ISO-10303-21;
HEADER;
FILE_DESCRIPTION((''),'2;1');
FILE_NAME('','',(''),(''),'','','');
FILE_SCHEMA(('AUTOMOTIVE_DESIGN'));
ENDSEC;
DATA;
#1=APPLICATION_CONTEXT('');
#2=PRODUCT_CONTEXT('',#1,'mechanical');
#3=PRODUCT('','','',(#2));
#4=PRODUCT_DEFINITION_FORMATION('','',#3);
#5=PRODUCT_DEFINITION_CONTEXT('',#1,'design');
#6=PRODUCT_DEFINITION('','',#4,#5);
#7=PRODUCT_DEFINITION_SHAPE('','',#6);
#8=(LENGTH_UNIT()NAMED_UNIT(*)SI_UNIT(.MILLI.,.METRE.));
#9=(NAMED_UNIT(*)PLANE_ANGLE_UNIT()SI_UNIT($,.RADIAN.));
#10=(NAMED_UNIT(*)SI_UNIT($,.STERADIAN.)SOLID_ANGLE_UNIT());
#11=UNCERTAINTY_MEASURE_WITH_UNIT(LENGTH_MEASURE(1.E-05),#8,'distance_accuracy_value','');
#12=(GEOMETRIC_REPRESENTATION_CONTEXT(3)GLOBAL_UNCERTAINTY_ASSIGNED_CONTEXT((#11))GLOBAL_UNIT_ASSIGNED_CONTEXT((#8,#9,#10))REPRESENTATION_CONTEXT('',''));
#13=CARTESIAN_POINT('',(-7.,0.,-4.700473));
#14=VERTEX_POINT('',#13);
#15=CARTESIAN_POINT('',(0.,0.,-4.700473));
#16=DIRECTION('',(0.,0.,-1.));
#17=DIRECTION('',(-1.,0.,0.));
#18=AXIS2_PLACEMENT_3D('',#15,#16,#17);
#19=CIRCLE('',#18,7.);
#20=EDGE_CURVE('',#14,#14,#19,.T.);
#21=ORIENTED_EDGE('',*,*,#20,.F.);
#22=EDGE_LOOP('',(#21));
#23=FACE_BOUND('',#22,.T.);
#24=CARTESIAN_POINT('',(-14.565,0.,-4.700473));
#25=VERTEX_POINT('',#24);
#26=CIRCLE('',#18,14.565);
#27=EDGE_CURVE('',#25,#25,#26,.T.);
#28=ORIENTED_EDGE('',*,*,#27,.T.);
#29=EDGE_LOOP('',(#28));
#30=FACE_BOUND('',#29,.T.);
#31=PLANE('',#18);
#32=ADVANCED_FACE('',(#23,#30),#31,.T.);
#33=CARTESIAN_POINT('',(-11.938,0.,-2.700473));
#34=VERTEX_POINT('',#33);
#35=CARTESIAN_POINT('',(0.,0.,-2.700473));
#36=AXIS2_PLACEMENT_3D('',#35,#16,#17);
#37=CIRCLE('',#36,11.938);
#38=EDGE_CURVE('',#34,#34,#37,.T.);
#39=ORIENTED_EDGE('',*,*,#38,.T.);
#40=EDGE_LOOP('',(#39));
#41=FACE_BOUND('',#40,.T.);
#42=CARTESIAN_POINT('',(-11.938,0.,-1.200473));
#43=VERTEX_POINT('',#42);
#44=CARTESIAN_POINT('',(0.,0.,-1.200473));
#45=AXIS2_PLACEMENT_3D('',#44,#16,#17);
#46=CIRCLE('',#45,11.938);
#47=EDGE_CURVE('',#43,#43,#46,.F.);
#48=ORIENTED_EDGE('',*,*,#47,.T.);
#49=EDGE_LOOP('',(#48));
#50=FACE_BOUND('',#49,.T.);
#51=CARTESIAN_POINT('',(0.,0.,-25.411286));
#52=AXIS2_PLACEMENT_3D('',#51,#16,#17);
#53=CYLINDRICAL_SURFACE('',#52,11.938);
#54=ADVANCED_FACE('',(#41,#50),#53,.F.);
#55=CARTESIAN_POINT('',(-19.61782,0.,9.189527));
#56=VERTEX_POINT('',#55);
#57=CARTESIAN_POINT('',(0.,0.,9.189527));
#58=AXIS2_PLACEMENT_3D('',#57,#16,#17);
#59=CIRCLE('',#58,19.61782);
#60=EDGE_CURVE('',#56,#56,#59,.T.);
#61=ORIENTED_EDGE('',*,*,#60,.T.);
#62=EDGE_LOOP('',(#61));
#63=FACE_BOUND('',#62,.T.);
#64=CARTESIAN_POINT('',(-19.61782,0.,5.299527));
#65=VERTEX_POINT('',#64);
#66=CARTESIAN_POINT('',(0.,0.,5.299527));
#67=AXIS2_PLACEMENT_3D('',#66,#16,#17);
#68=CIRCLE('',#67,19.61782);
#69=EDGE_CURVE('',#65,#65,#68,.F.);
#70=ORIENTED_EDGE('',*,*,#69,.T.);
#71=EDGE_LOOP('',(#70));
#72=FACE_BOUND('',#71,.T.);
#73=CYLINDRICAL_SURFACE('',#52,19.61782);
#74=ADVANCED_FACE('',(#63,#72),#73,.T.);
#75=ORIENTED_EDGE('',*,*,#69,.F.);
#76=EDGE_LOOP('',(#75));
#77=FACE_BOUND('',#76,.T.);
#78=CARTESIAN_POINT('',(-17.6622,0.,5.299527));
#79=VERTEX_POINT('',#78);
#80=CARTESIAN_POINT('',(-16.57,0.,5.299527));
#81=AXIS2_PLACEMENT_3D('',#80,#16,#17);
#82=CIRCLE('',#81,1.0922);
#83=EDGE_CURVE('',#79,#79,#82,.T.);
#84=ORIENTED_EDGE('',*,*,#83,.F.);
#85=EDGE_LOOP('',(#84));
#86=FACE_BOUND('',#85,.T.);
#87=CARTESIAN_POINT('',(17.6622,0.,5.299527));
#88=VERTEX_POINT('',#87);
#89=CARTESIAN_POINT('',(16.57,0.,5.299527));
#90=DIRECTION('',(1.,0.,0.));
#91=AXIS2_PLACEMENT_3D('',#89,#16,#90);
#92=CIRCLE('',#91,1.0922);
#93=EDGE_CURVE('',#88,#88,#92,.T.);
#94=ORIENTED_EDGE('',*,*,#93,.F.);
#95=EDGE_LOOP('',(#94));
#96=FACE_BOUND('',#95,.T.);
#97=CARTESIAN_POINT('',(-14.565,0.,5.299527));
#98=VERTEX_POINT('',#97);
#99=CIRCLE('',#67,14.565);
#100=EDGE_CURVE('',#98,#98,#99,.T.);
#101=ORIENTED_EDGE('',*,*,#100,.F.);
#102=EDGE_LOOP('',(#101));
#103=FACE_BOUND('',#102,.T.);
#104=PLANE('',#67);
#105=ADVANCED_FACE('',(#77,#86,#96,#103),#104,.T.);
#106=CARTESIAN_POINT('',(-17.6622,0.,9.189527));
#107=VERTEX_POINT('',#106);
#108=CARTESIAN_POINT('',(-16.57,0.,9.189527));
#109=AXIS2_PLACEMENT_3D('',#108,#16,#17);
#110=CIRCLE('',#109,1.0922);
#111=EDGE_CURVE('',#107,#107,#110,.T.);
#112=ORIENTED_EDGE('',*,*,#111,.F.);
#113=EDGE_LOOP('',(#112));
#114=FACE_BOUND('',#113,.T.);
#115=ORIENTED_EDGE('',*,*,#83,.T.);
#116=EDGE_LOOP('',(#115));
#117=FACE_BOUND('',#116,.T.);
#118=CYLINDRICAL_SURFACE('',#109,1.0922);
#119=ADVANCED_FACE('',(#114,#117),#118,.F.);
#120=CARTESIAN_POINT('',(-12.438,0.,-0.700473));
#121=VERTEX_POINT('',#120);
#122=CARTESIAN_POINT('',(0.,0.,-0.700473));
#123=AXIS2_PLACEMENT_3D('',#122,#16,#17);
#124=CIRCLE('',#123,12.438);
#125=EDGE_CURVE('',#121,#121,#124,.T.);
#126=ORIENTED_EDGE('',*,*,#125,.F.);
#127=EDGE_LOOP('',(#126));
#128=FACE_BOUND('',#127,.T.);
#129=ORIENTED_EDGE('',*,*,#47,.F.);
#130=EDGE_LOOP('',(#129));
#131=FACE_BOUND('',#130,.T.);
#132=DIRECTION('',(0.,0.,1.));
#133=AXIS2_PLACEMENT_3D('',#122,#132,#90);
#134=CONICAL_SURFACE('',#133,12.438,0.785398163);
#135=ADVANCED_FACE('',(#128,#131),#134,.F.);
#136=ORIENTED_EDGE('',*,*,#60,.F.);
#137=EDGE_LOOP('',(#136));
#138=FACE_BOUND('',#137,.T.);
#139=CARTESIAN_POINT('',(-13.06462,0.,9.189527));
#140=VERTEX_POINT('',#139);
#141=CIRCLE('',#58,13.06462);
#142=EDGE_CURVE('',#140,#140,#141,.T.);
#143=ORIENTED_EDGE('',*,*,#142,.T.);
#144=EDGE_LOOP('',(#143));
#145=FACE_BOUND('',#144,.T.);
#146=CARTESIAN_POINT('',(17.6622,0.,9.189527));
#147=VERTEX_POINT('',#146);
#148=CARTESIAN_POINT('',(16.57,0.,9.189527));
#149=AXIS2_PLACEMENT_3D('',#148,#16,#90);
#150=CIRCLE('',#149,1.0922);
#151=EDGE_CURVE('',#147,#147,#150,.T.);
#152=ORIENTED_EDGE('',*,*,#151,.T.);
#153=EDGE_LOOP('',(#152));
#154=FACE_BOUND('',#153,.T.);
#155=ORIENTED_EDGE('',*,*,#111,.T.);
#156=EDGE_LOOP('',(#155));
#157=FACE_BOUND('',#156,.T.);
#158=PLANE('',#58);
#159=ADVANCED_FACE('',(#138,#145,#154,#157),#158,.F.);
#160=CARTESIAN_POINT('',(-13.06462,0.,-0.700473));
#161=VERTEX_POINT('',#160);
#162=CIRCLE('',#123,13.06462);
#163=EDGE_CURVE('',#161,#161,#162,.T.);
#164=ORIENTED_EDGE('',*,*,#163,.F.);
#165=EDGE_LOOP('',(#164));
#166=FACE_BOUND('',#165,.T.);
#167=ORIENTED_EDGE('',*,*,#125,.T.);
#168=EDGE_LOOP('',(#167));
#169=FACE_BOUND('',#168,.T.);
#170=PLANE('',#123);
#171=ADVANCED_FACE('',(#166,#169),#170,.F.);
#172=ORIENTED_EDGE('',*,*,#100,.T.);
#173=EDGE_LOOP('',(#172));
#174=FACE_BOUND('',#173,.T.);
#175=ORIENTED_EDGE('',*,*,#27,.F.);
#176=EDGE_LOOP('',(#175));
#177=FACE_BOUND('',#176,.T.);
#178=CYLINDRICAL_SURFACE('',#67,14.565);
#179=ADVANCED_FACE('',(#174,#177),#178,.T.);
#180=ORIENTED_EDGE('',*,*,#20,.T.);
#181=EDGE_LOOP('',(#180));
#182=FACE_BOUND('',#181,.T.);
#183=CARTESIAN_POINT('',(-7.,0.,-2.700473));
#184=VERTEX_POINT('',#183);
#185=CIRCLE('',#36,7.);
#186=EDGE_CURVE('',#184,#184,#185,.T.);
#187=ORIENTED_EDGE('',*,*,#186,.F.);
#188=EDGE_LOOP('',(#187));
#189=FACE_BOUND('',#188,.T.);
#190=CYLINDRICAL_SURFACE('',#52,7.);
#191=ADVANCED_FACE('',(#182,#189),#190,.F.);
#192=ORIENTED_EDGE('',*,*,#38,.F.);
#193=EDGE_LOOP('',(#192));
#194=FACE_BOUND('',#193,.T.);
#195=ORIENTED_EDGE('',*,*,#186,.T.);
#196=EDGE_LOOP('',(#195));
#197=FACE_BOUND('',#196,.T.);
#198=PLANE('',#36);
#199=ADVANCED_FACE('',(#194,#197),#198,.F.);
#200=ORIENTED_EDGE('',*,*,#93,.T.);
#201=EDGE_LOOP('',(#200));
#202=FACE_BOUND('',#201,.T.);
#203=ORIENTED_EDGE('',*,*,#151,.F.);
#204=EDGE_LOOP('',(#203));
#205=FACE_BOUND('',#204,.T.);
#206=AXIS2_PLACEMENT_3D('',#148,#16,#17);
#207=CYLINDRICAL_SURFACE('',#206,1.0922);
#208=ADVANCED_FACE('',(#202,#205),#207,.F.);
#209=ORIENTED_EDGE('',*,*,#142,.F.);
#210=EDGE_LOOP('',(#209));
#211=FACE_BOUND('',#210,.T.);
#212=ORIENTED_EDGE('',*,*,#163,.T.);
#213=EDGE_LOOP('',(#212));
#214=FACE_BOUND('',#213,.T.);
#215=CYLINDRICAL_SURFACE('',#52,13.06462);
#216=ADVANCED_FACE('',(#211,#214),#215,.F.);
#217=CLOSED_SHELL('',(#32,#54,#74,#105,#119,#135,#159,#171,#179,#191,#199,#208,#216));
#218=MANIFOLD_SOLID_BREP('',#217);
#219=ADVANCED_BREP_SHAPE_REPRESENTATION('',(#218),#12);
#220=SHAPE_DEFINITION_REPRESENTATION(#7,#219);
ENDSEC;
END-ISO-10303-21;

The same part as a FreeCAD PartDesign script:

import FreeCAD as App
import Part
import Sketcher

V = App.Vector


def edges_at(feature, points):
    """Names of the edges that pass closest to the given points."""
    edges = feature.Shape.Edges
    near = lambda p: min(range(len(edges)), key=lambda i: edges[i].distToShape(Part.Vertex(*p))[0])
    return sorted({f"Edge{near(p) + 1}" for p in points})

doc = App.newDocument("Part")
params = doc.addObject("Spreadsheet::Sheet", "Params")
for row, (alias, value) in enumerate([
    ("sketch1_height", "2 mm"),
    ("sketch1_height2", "13.89 mm"),
    ("revolution_angle", "360 deg"),
    ("sketch2_diameter", "29.13 mm"),
    ("pocket1_length", "10 mm"),
    ("chamfer_size", "0.5 mm"),
], start=1):
    params.set(f"A{row}", alias)
    params.set(f"B{row}", "=" + value)
    params.setAlias(f"B{row}", alias)

body = doc.addObject("PartDesign::Body", "Body")

sketch1 = body.newObject("Sketcher::SketchObject", "Sketch")
sketch1.AttachmentSupport = (doc.getObject("XZ_Plane"), [""])
sketch1.MapMode = "FlatFace"
sketch1.addGeometry([
    Part.LineSegment(V(-19.6, -4.7, 0), V(-19.6, 9.2, 0)),
    Part.LineSegment(V(-19.6, 9.2, 0), V(-13.1, 9.2, 0)),
    Part.LineSegment(V(-13.1, 9.2, 0), V(-13.1, -0.7, 0)),
    Part.LineSegment(V(-13.1, -0.7, 0), V(-11.9, -0.7, 0)),
    Part.LineSegment(V(-11.9, -0.7, 0), V(-11.9, -2.7, 0)),
    Part.LineSegment(V(-11.9, -2.7, 0), V(-7, -2.7, 0)),
    Part.LineSegment(V(-7, -2.7, 0), V(-7, -4.7, 0)),
    Part.LineSegment(V(-7, -4.7, 0), V(-19.6, -4.7, 0)),
], False)
sketch1.addConstraint([
    Sketcher.Constraint("Coincident", 0, 2, 1, 1),
    Sketcher.Constraint("Coincident", 1, 2, 2, 1),
    Sketcher.Constraint("Coincident", 2, 2, 3, 1),
    Sketcher.Constraint("Coincident", 3, 2, 4, 1),
    Sketcher.Constraint("Coincident", 4, 2, 5, 1),
    Sketcher.Constraint("Coincident", 5, 2, 6, 1),
    Sketcher.Constraint("Coincident", 6, 2, 7, 1),
    Sketcher.Constraint("Coincident", 7, 2, 0, 1),
    Sketcher.Constraint("Vertical", 0),
    Sketcher.Constraint("Horizontal", 1),
    Sketcher.Constraint("Vertical", 2),
    Sketcher.Constraint("Horizontal", 3),
    Sketcher.Constraint("Vertical", 4),
    Sketcher.Constraint("Horizontal", 5),
    Sketcher.Constraint("Vertical", 6),
    Sketcher.Constraint("Horizontal", 7),
    Sketcher.Constraint("Equal", 4, 6),
    Sketcher.Constraint("DistanceY", 4, 2, 4, 1, 2.0),
    Sketcher.Constraint("DistanceX", 5, 2, -1, 1, 7.0),
    Sketcher.Constraint("DistanceY", 0, 1, 0, 2, 13.89),
    Sketcher.Constraint("DistanceX", 5, 1, 5, 2, 4.938),
    Sketcher.Constraint("DistanceX", 1, 1, 1, 2, 6.5532),
    Sketcher.Constraint("DistanceX", 3, 1, 3, 2, 1.12662),
    Sketcher.Constraint("DistanceY", -1, 1, 0, 2, 9.189527),
])
sketch1.setExpression("Constraints[17]", "Params.sketch1_height")
sketch1.setExpression("Constraints[19]", "Params.sketch1_height2")
revolution = body.newObject("PartDesign::Revolution", "Revolution")
revolution.Profile = sketch1
revolution.ReferenceAxis = (sketch1, ["V_Axis"])
revolution.setExpression("Angle", "Params.revolution_angle")

sketch2 = body.newObject("Sketcher::SketchObject", "Sketch001")
sketch2.AttachmentSupport = (doc.getObject("XY_Plane"), [""])
sketch2.MapMode = "FlatFace"
sketch2.AttachmentOffset = App.Placement(V(0, 0, -4.700473), App.Rotation())
sketch2.addGeometry([
    Part.Circle(V(0, 0, 0), V(0, 0, 1), 27),
    Part.Circle(V(0, 0, 0), V(0, 0, 1), 15),
], False)
sketch2.addConstraint([
    Sketcher.Constraint("Coincident", 0, 3, -1, 1),
    Sketcher.Constraint("Coincident", 1, 3, -1, 1),
    Sketcher.Constraint("Diameter", 1, 29.13),
    Sketcher.Constraint("Diameter", 0, 53.305533),
])
sketch2.setExpression("Constraints[2]", "Params.sketch2_diameter")
pocket1 = body.newObject("PartDesign::Pocket", "Pocket")
pocket1.Profile = sketch2
pocket1.setExpression("Length", "Params.pocket1_length")
pocket1.Reversed = True

sketch3 = body.newObject("Sketcher::SketchObject", "Sketch002")
sketch3.AttachmentSupport = (doc.getObject("XY_Plane"), [""])
sketch3.MapMode = "FlatFace"
sketch3.AttachmentOffset = App.Placement(V(0, 0, 5.299527), App.Rotation())
sketch3.addGeometry([
    Part.Circle(V(-16.6, 0, 0), V(0, 0, 1), 1.1),
    Part.Circle(V(16.6, 0, 0), V(0, 0, 1), 1.1),
], False)
sketch3.addConstraint([
    Sketcher.Constraint("Equal", 0, 1),
    Sketcher.Constraint("Symmetric", 0, 3, 1, 3, -1, 1),
    Sketcher.Constraint("PointOnObject", 0, 3, -1),
    Sketcher.Constraint("Diameter", 0, 2.1844),
    Sketcher.Constraint("DistanceX", 0, 3, -1, 1, 16.57),
])
pocket2 = body.newObject("PartDesign::Pocket", "Pocket001")
pocket2.Profile = sketch3
pocket2.Type = "ThroughAll"
pocket2.Reversed = True
doc.recompute()

chamfer = body.newObject("PartDesign::Chamfer", "Chamfer")
chamfer.Base = (pocket2, edges_at(pocket2, [(11.938, 0, -0.7)]))
chamfer.setExpression("Size", "Params.chamfer_size")

doc.recompute()
